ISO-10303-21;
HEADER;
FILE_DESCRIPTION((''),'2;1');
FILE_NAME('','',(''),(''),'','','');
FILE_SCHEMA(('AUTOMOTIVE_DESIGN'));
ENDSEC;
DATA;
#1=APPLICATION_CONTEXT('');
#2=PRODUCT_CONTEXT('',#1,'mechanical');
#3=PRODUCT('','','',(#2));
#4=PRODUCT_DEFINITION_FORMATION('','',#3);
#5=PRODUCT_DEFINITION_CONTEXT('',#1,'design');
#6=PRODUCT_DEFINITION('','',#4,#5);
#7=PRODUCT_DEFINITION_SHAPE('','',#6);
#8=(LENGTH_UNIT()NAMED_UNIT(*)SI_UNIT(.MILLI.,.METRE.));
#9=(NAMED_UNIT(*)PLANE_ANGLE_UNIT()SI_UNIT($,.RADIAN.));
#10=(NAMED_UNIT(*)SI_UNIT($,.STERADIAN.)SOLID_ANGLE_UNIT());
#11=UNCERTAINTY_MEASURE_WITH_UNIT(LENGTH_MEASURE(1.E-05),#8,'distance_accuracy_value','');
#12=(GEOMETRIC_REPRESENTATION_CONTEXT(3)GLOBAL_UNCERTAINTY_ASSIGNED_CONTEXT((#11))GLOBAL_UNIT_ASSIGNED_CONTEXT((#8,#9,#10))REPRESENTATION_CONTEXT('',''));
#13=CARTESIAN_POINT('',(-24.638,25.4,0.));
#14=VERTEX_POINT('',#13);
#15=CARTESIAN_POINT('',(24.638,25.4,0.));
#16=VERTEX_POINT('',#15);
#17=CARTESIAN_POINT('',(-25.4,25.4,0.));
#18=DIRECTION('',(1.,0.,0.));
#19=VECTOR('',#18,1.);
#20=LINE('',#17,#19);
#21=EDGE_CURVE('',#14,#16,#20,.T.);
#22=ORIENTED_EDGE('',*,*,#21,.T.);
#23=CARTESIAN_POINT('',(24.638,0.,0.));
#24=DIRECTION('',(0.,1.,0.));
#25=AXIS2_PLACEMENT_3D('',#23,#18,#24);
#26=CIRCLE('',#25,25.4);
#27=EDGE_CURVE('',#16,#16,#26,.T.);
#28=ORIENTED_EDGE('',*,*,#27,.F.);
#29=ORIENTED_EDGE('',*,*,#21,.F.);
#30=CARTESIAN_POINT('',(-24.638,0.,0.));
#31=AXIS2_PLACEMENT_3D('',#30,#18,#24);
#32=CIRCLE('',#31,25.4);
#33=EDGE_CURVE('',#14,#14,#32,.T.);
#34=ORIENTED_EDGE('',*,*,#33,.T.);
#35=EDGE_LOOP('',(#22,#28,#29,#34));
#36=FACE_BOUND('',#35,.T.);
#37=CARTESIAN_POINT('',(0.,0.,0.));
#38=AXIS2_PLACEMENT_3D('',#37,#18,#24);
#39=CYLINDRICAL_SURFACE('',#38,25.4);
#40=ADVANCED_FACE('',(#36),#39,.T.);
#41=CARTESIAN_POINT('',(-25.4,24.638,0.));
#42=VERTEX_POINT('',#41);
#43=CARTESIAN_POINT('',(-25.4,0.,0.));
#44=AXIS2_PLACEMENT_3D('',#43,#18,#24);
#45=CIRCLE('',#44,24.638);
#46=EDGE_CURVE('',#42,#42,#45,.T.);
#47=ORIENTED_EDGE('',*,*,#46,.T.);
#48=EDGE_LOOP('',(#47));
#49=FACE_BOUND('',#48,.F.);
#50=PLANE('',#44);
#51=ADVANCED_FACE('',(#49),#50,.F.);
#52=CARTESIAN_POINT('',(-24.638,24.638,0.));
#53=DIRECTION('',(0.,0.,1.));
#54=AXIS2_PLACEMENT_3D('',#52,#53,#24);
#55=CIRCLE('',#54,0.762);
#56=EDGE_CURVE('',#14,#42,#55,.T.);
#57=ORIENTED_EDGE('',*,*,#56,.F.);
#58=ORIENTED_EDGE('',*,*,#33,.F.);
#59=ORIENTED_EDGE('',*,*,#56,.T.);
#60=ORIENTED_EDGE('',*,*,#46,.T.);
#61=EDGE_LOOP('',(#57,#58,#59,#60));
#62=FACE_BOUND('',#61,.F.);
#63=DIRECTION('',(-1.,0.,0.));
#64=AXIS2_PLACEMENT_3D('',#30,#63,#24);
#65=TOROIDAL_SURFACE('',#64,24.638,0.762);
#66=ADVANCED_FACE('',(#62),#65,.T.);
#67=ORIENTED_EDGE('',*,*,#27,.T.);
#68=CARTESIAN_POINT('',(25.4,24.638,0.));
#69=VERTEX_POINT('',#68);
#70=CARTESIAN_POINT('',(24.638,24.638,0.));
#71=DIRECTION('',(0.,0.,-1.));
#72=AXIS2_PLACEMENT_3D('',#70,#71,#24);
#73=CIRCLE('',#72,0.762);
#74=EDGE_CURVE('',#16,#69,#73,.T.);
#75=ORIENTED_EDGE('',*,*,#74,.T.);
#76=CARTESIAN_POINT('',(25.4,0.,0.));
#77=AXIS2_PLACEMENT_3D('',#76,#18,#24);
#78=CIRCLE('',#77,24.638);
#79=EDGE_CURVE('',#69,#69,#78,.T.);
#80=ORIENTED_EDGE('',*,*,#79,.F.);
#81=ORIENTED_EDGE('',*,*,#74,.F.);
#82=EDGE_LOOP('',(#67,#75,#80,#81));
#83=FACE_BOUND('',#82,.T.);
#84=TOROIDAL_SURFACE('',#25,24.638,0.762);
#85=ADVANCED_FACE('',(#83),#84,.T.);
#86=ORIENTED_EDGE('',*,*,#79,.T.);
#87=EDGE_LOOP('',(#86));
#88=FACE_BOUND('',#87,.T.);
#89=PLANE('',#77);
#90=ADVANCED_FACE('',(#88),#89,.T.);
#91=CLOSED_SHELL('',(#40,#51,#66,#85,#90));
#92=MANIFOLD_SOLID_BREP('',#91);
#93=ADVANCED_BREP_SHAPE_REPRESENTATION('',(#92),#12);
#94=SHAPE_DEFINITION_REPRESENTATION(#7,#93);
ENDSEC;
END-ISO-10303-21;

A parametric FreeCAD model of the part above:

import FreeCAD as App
import Part
import Sketcher
from FreeCAD import Vector
Q = App.Units.Quantity


def edges_at(feature, points):
    """Names of the edges that pass closest to the given points."""
    edges = feature.Shape.Edges
    near = lambda p: min(range(len(edges)), key=lambda i: edges[i].distToShape(Part.Vertex(*p))[0])
    return sorted({f"Edge{near(p) + 1}" for p in points})

doc = App.newDocument("Part")
body = doc.addObject("PartDesign::Body", "Body")

# Sketch on YZ plane
sketch1 = doc.addObject("Sketcher::SketchObject", "Sketch")
body.addObject(sketch1)
sketch1.AttachmentSupport = (doc.YZ_Plane, [""])
sketch1.MapMode = "FlatFace"
sketch1.addGeometry(Part.Circle(Vector(0, 0, 0), Vector(0, 0, 1), 25), False)
sketch1.addConstraint([
    Sketcher.Constraint("Coincident", 0, 3, -1, 1),
    Sketcher.Constraint("Diameter", 0, Q("2 in")),
])
pad1 = doc.addObject("PartDesign::Pad", "Pad")
body.addObject(pad1)
pad1.Profile = sketch1
pad1.Length = Q("2 in")
pad1.Midplane = True
doc.recompute()

fillet = doc.addObject("PartDesign::Fillet", "Fillet")
body.addObject(fillet)
fillet.Base = (pad1, edges_at(pad1, [(25.4, -25.4, 0), (-25.4, -25.4, 0)]))
fillet.Radius = Q("0.03 in")

doc.recompute()
